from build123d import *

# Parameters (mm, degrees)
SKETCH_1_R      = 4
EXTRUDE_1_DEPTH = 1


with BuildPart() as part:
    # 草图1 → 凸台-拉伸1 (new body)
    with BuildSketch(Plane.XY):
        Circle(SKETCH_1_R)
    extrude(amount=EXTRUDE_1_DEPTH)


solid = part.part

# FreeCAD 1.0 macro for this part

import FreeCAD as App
import Part
import Sketcher
from FreeCAD import Vector
Q = App.Units.Quantity

doc = App.newDocument("Part")
body = doc.addObject("PartDesign::Body", "Body")

sketch1 = body.newObject("Sketcher::SketchObject", "Sketch")
sketch1.AttachmentSupport = (doc.getObject("XY_Plane"), [""])
sketch1.MapMode = "FlatFace"
sketch1.addGeometry(Part.Circle(Vector(0, 0, 0), Vector(0, 0, 1), 4), False)
sketch1.addConstraint(Sketcher.Constraint("Coincident", 0, 3, -1, 1))
sketch1.addConstraint(Sketcher.Constraint("Diameter", 0, Q("8 mm")))
pad1 = body.newObject("PartDesign::Pad", "Pad")
pad1.Profile = sketch1
pad1.Length = 1

doc.recompute()
